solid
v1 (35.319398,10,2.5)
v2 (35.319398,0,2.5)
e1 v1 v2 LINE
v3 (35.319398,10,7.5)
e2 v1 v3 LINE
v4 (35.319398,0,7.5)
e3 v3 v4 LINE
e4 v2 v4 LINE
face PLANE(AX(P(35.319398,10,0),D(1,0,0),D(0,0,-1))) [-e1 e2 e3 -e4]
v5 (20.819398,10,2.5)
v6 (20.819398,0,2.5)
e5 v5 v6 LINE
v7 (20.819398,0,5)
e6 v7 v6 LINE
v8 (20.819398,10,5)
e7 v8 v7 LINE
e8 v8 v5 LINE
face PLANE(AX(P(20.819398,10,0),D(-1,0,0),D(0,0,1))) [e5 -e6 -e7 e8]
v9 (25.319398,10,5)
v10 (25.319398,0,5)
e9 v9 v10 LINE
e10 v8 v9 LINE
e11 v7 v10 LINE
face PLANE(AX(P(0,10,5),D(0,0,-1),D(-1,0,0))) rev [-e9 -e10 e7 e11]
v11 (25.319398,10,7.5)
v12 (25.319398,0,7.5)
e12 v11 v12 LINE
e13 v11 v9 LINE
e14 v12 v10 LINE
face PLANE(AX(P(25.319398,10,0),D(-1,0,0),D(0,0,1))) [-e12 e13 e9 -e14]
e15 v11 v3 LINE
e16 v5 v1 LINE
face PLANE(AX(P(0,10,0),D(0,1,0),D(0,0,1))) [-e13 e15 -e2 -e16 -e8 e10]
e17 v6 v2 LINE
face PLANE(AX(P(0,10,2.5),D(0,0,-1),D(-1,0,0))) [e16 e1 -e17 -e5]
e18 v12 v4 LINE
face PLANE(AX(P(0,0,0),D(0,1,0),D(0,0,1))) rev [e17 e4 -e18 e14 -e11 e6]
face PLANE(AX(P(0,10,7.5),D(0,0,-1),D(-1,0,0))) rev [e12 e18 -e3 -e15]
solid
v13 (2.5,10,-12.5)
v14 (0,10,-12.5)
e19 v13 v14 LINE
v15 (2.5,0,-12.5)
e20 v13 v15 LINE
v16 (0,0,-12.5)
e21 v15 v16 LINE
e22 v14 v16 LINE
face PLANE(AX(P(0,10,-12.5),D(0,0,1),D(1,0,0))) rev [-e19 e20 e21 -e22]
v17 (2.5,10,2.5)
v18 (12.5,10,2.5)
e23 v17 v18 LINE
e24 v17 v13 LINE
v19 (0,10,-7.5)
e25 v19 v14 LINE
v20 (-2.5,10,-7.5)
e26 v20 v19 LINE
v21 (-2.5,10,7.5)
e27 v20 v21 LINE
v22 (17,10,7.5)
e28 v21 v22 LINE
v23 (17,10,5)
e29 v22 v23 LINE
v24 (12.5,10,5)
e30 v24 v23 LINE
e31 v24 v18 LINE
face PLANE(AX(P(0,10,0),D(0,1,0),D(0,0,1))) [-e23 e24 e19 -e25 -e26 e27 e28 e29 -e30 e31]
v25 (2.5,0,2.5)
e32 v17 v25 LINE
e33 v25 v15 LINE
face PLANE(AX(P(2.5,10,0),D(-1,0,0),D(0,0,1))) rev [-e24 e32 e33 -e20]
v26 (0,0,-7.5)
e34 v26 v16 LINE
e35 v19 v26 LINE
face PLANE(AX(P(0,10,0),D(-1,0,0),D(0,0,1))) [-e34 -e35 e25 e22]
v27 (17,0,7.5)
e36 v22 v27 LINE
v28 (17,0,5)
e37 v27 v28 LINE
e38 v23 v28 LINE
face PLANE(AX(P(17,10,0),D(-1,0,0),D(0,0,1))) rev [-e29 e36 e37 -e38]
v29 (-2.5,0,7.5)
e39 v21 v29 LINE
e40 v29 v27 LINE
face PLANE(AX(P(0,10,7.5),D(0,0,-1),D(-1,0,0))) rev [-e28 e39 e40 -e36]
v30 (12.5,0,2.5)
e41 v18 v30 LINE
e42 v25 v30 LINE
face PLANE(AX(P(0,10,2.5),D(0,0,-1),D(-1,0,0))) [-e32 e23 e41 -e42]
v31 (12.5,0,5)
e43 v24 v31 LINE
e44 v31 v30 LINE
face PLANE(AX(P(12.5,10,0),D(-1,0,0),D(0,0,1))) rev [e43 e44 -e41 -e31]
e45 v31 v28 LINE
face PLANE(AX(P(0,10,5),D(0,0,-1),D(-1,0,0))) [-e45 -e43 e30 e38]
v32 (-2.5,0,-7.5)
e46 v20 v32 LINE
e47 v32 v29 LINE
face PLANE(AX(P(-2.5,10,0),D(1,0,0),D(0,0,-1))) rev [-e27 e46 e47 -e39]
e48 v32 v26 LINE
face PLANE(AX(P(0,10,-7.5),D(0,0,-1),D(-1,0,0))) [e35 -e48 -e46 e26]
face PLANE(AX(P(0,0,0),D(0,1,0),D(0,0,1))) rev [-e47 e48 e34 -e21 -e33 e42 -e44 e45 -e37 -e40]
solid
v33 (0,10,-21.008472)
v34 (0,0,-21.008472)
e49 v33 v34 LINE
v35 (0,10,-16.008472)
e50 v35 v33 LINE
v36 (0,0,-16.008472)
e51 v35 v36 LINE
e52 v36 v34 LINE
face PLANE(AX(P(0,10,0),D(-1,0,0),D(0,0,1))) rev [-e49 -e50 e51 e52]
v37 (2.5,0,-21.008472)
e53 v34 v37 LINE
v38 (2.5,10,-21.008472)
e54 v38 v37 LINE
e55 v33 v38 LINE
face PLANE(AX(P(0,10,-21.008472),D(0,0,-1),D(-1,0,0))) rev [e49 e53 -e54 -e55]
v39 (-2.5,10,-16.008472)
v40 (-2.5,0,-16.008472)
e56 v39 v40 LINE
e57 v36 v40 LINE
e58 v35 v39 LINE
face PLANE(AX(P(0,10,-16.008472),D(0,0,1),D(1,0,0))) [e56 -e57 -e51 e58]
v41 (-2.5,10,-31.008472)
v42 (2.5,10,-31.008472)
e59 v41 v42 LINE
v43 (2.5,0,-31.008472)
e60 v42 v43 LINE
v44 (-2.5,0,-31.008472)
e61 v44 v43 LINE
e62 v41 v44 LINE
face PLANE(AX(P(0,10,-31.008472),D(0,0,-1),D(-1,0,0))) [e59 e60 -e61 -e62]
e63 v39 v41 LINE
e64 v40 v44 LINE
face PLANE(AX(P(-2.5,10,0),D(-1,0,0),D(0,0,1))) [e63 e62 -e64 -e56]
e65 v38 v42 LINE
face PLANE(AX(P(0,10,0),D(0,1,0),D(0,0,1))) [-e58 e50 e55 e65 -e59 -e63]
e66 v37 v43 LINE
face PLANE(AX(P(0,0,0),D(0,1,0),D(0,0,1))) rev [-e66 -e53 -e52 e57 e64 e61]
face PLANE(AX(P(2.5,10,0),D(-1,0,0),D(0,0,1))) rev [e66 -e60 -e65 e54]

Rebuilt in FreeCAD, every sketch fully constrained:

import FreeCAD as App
import Part
import Sketcher
Q = App.Units.Quantity

doc = App.newDocument("Part")
body = doc.addObject("PartDesign::Body", "Body")
body.AllowCompound = True

sketch1 = body.newObject("Sketcher::SketchObject", "Sketch")
sketch1.AttachmentSupport = (doc.getObject("XZ_Plane"), [""])
sketch1.MapMode = "FlatFace"
sketch1.addGeometry([
    Part.LineSegment(App.Vector(0, -21.008472, 0), App.Vector(2.5, -21.008472, 0)),
    Part.LineSegment(App.Vector(2.5, -21.008472, 0), App.Vector(2.5, -31.008472, 0)),
    Part.LineSegment(App.Vector(2.5, -31.008472, 0), App.Vector(-2.5, -31.008472, 0)),
    Part.LineSegment(App.Vector(-2.5, -31.008472, 0), App.Vector(-2.5, -16.008472, 0)),
    Part.LineSegment(App.Vector(-2.5, -16.008472, 0), App.Vector(0, -16.008472, 0)),
    Part.LineSegment(App.Vector(0, -16.008472, 0), App.Vector(0, -21.008472, 0)),
    Part.LineSegment(App.Vector(0, -12.5, 0), App.Vector(0, -7.5, 0)),
    Part.LineSegment(App.Vector(0, -7.5, 0), App.Vector(-2.5, -7.5, 0)),
    Part.LineSegment(App.Vector(-2.5, -7.5, 0), App.Vector(-2.5, 7.5, 0)),
    Part.LineSegment(App.Vector(-2.5, 7.5, 0), App.Vector(17, 7.5, 0)),
    Part.LineSegment(App.Vector(17, 7.5, 0), App.Vector(17, 5, 0)),
    Part.LineSegment(App.Vector(17, 5, 0), App.Vector(12.5, 5, 0)),
    Part.LineSegment(App.Vector(12.5, 5, 0), App.Vector(12.5, 2.5, 0)),
    Part.LineSegment(App.Vector(12.5, 2.5, 0), App.Vector(2.5, 2.5, 0)),
    Part.LineSegment(App.Vector(2.5, 2.5, 0), App.Vector(2.5, -12.5, 0)),
    Part.LineSegment(App.Vector(2.5, -12.5, 0), App.Vector(0, -12.5, 0)),
    Part.LineSegment(App.Vector(20.819398, 2.5, 0), App.Vector(20.819398, 5, 0)),
    Part.LineSegment(App.Vector(20.819398, 5, 0), App.Vector(25.319398, 5, 0)),
    Part.LineSegment(App.Vector(25.319398, 5, 0), App.Vector(25.319398, 7.5, 0)),
    Part.LineSegment(App.Vector(25.319398, 7.5, 0), App.Vector(35.319398, 7.5, 0)),
    Part.LineSegment(App.Vector(35.319398, 7.5, 0), App.Vector(35.319398, 2.5, 0)),
    Part.LineSegment(App.Vector(35.319398, 2.5, 0), App.Vector(20.819398, 2.5, 0)),
], False)
sketch1.addConstraint([
    Sketcher.Constraint("Coincident", 0, 2, 1, 1),
    Sketcher.Constraint("Coincident", 1, 2, 2, 1),
    Sketcher.Constraint("Coincident", 2, 2, 3, 1),
    Sketcher.Constraint("Coincident", 3, 2, 4, 1),
    Sketcher.Constraint("Coincident", 4, 2, 5, 1),
    Sketcher.Constraint("Coincident", 5, 2, 0, 1),
    Sketcher.Constraint("Coincident", 6, 2, 7, 1),
    Sketcher.Constraint("Coincident", 7, 2, 8, 1),
    Sketcher.Constraint("Coincident", 8, 2, 9, 1),
    Sketcher.Constraint("Coincident", 9, 2, 10, 1),
    Sketcher.Constraint("Coincident", 10, 2, 11, 1),
    Sketcher.Constraint("Coincident", 11, 2, 12, 1),
    Sketcher.Constraint("Coincident", 12, 2, 13, 1),
    Sketcher.Constraint("Coincident", 13, 2, 14, 1),
    Sketcher.Constraint("Coincident", 14, 2, 15, 1),
    Sketcher.Constraint("Coincident", 15, 2, 6, 1),
    Sketcher.Constraint("Coincident", 16, 2, 17, 1),
    Sketcher.Constraint("Coincident", 17, 2, 18, 1),
    Sketcher.Constraint("Coincident", 18, 2, 19, 1),
    Sketcher.Constraint("Coincident", 19, 2, 20, 1),
    Sketcher.Constraint("Coincident", 20, 2, 21, 1),
    Sketcher.Constraint("Coincident", 21, 2, 16, 1),
    Sketcher.Constraint("Horizontal", 0),
    Sketcher.Constraint("Vertical", 1),
    Sketcher.Constraint("Horizontal", 2),
    Sketcher.Constraint("Vertical", 3),
    Sketcher.Constraint("Horizontal", 4),
    Sketcher.Constraint("Vertical", 5),
    Sketcher.Constraint("Vertical", 6),
    Sketcher.Constraint("Horizontal", 7),
    Sketcher.Constraint("Vertical", 8),
    Sketcher.Constraint("Horizontal", 9),
    Sketcher.Constraint("Vertical", 10),
    Sketcher.Constraint("Horizontal", 11),
    Sketcher.Constraint("Vertical", 12),
    Sketcher.Constraint("Horizontal", 13),
    Sketcher.Constraint("Vertical", 14),
    Sketcher.Constraint("Horizontal", 15),
    Sketcher.Constraint("Vertical", 16),
    Sketcher.Constraint("Horizontal", 17),
    Sketcher.Constraint("Vertical", 18),
    Sketcher.Constraint("Horizontal", 19),
    Sketcher.Constraint("Vertical", 20),
    Sketcher.Constraint("Horizontal", 21),
    Sketcher.Constraint("PointOnObject", 4, 2, -2),
    Sketcher.Constraint("PointOnObject", 6, 2, -2),
    Sketcher.Constraint("Horizontal", 11, 2, 16, 2),
    Sketcher.Constraint("Horizontal", 9, 2, 18, 2),
    Sketcher.Constraint("Horizontal", 13, 2, 20, 2),
    Sketcher.Constraint("Vertical", 3, 2, 7, 2),
    Sketcher.Constraint("Vertical", 1, 2, 13, 2),
    Sketcher.Constraint("Equal", 0, 4),
    Sketcher.Constraint("Equal", 11, 17),
    Sketcher.Constraint("Equal", 13, 19),
    Sketcher.Constraint("Equal", 19, 1),
    Sketcher.Constraint("Equal", 2, 5),
    Sketcher.Constraint("Equal", 5, 6),
    Sketcher.Constraint("Equal", 3, 8),
    Sketcher.Constraint("Equal", 15, 10),
    Sketcher.Constraint("Equal", 10, 12),
    Sketcher.Constraint("DistanceX", 2, 2, 2, 1, Q("5 mm")),
    Sketcher.Constraint("DistanceX", 13, 2, 13, 1, Q("10 mm")),
    Sketcher.Constraint("DistanceX", 9, 1, 9, 2, Q("19.5 mm")),
    Sketcher.Constraint("DistanceY", -1, 1, 10, 2, Q("5 mm")),
    Sketcher.Constraint("DistanceY", 0, 2, -1, 1, Q("21.008472 mm")),
    Sketcher.Constraint("DistanceX", -1, 1, 16, 2, Q("20.819398 mm")),
])
pad1 = body.newObject("PartDesign::Pad", "Pad")
pad1.Profile = sketch1
pad1.Length = 10
pad1.Reversed = True

doc.recompute()
